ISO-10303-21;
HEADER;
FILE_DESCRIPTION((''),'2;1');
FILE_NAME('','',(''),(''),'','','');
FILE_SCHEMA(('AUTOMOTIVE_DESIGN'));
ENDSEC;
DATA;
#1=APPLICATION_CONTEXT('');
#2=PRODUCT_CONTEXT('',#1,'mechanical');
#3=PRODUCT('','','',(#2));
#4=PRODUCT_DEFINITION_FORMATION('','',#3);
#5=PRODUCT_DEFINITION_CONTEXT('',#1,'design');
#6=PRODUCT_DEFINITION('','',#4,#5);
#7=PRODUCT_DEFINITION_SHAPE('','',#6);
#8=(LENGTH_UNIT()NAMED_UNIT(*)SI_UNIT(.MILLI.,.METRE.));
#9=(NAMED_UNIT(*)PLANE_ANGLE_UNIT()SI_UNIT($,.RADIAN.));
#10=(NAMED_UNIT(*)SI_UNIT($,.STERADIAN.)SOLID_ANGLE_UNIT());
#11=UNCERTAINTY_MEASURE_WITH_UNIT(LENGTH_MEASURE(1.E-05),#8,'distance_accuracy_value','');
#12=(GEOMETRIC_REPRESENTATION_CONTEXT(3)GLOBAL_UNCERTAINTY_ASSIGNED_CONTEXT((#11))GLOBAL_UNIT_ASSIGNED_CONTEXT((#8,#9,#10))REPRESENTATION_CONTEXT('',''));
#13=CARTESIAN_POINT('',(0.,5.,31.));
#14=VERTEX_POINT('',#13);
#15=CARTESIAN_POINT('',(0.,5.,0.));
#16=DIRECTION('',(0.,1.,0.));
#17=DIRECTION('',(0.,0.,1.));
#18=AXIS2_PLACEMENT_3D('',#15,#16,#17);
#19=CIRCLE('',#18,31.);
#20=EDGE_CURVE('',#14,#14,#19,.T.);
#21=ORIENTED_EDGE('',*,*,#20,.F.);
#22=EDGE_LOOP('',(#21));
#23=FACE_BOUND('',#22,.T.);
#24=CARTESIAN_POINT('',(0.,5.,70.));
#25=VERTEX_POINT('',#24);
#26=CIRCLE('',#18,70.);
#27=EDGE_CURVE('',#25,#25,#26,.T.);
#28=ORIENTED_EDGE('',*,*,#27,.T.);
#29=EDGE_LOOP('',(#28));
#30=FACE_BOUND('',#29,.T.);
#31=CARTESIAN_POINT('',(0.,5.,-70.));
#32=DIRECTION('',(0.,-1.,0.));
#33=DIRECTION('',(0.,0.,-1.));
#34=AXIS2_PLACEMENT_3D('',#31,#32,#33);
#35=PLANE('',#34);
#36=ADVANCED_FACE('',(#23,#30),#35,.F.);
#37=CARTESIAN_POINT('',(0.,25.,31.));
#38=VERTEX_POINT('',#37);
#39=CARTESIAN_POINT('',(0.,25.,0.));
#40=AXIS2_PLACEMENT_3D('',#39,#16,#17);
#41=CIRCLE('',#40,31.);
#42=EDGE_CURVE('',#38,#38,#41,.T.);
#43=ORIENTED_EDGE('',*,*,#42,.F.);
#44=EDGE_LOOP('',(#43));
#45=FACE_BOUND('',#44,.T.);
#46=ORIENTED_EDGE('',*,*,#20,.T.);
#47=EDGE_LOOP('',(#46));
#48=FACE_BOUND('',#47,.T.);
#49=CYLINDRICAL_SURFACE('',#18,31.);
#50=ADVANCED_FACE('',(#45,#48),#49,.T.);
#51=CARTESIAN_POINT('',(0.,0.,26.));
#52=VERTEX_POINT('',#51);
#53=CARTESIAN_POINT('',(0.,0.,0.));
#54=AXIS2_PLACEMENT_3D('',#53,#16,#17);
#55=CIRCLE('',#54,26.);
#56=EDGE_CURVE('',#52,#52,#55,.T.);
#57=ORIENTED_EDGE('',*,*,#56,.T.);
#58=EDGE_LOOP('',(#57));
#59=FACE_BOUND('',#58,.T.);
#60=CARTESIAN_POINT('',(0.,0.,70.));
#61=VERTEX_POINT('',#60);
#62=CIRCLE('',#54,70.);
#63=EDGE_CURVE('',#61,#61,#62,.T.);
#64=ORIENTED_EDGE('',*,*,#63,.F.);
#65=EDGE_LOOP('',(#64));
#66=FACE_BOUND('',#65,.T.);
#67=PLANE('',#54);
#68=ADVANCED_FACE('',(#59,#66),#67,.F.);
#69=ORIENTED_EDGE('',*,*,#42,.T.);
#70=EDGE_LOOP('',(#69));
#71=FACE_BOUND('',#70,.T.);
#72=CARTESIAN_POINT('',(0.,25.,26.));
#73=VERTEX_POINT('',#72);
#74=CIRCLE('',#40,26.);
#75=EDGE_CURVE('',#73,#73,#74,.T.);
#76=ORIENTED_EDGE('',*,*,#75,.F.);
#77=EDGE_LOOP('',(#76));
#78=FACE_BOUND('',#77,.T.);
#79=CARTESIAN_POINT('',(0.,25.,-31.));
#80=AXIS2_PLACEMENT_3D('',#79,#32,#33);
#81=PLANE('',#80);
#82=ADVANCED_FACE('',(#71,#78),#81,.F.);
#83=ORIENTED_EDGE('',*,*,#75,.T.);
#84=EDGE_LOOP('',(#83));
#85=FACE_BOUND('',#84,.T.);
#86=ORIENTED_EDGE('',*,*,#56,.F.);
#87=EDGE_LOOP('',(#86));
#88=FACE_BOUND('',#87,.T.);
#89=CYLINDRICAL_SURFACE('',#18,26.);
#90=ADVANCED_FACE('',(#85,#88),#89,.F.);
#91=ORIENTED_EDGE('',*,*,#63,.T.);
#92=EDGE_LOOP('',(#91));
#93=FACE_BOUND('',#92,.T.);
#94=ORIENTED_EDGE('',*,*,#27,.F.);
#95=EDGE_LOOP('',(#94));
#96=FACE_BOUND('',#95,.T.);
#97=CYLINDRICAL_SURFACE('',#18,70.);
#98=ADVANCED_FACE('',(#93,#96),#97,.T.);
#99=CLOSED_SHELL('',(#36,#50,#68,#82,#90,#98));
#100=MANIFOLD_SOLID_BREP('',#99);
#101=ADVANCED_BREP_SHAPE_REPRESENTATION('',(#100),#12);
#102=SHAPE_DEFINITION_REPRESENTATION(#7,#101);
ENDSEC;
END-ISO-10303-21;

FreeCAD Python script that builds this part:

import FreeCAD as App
import Part
import Sketcher
from FreeCAD import Vector

doc = App.newDocument("Part")
body = doc.addObject("PartDesign::Body", "Body")

sketch1 = body.newObject("Sketcher::SketchObject", "Sketch")
sketch1.AttachmentSupport = (doc.getObject("YZ_Plane"), [""])
sketch1.MapMode = "FlatFace"
sketch1.addGeometry([
    Part.LineSegment(Vector(0, 0, 0), Vector(0, -70, 0)),
    Part.LineSegment(Vector(0, -70, 0), Vector(5, -70, 0)),
    Part.LineSegment(Vector(5, -70, 0), Vector(5, -31, 0)),
    Part.LineSegment(Vector(5, -31, 0), Vector(25, -31, 0)),
    Part.LineSegment(Vector(25, -31, 0), Vector(25, -26, 0)),
    Part.LineSegment(Vector(25, -26, 0), Vector(5, -26, 0)),
    Part.LineSegment(Vector(5, -26, 0), Vector(5, 0, 0)),
    Part.LineSegment(Vector(5, 0, 0), Vector(0, 0, 0)),
], False)
sketch1.addConstraint([
    Sketcher.Constraint("Coincident", 0, 2, 1, 1),
    Sketcher.Constraint("Coincident", 1, 2, 2, 1),
    Sketcher.Constraint("Coincident", 2, 2, 3, 1),
    Sketcher.Constraint("Coincident", 3, 2, 4, 1),
    Sketcher.Constraint("Coincident", 4, 2, 5, 1),
    Sketcher.Constraint("Coincident", 5, 2, 6, 1),
    Sketcher.Constraint("Coincident", 6, 2, 7, 1),
    Sketcher.Constraint("Coincident", 7, 2, 0, 1),
    Sketcher.Constraint("Vertical", 0),
    Sketcher.Constraint("Horizontal", 1),
    Sketcher.Constraint("Vertical", 2),
    Sketcher.Constraint("Horizontal", 3),
    Sketcher.Constraint("Vertical", 4),
    Sketcher.Constraint("Horizontal", 5),
    Sketcher.Constraint("Vertical", 6),
    Sketcher.Constraint("Horizontal", 7),
    Sketcher.Constraint("Coincident", 7, 2, -1, 1),
    Sketcher.Constraint("Vertical", 2, 2, 5, 2),
    Sketcher.Constraint("Equal", 7, 4),
    Sketcher.Constraint("DistanceX", 1, 1, 1, 2, 5.0),
    Sketcher.Constraint("DistanceX", 3, 1, 3, 2, 20.0),
    Sketcher.Constraint("DistanceY", 0, 2, 0, 1, 70.0),
    Sketcher.Constraint("DistanceY", 2, 1, 2, 2, 39.0),
])
revolution = body.newObject("PartDesign::Revolution", "Revolution")
revolution.Profile = sketch1
revolution.ReferenceAxis = (sketch1, ["H_Axis"])
revolution.Angle = 360

sketch2 = body.newObject("Sketcher::SketchObject", "Sketch001")
sketch2.AttachmentSupport = (doc.getObject("XZ_Plane"), [""])
sketch2.MapMode = "FlatFace"
sketch2.AttachmentOffset = App.Placement(Vector(0, 0, 5), App.Rotation())
sketch2.addGeometry(Part.Circle(Vector(0, 0, 0), Vector(0, 0, 1), 26), False)
sketch2.addConstraint([
    Sketcher.Constraint("Coincident", 0, 3, -1, 1),
    Sketcher.Constraint("Diameter", 0, 52.0),
])
pocket1 = body.newObject("PartDesign::Pocket", "Pocket")
pocket1.Profile = sketch2
pocket1.Length = 10

doc.recompute()
